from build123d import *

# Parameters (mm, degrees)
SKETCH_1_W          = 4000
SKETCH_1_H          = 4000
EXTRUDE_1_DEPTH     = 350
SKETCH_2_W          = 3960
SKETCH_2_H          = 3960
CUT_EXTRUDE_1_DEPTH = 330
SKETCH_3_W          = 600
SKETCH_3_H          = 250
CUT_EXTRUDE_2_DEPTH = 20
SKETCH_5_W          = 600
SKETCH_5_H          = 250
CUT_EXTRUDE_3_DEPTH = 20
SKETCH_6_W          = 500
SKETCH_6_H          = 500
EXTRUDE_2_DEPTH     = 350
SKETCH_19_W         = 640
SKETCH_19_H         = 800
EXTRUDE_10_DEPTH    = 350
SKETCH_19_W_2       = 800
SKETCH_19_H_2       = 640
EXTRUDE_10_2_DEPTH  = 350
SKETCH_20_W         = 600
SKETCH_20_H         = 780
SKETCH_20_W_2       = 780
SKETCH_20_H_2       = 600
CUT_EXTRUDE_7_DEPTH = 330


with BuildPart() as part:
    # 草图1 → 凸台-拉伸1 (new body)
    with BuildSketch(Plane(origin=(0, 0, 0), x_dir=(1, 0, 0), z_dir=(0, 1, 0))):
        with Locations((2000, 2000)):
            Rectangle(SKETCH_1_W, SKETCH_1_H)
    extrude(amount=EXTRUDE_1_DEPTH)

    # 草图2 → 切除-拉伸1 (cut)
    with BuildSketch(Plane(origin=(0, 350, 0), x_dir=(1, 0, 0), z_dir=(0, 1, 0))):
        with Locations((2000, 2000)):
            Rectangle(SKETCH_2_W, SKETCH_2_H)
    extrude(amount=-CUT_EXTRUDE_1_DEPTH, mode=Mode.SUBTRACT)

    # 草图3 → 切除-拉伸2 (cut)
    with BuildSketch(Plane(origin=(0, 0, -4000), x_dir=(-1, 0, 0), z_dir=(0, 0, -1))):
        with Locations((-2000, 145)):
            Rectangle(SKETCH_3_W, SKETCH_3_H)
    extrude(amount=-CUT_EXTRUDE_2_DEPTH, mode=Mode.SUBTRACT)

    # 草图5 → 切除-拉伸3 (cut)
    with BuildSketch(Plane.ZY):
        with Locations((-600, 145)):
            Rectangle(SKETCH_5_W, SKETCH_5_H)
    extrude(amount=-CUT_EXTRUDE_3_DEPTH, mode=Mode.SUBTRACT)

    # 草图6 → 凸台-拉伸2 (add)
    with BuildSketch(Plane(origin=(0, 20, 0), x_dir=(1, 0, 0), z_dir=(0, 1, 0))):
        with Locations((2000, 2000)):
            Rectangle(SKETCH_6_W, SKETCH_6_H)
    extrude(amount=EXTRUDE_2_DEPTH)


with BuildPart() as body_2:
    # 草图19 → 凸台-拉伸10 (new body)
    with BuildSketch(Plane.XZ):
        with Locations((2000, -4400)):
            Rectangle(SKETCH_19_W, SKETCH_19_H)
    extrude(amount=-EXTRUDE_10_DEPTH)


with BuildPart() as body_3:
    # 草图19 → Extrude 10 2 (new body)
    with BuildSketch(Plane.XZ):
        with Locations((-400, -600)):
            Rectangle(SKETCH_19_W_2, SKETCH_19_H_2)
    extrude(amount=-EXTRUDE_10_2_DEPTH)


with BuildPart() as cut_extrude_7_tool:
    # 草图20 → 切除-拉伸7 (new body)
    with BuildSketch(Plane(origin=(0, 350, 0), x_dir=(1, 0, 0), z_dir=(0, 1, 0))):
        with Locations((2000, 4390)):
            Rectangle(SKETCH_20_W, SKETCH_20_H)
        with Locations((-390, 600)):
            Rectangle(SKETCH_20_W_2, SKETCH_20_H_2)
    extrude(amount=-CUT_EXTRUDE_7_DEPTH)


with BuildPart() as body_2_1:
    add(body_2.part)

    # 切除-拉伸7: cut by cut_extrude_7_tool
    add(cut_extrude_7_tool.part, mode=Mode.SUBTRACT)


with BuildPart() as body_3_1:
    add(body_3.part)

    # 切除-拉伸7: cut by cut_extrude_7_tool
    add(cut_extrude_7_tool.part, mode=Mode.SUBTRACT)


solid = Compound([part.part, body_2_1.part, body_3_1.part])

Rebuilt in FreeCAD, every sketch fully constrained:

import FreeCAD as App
import Part
import Sketcher
from FreeCAD import Vector


def add_polygon(sketch, points):
    """Adds a closed chain of lines whose ends are joined by coincident constraints."""
    first, n = sketch.GeometryCount, len(points)
    for a, b in zip(points, points[1:] + points[:1]):
        sketch.addGeometry(Part.LineSegment(App.Vector(*a, 0), App.Vector(*b, 0)), False)
    for i in range(n):
        sketch.addConstraint(Sketcher.Constraint("Coincident", first + i, 2, first + (i + 1) % n, 1))

doc = App.newDocument("Part")
body = doc.addObject("PartDesign::Body", "Body")

# Sketch on XZ plane
sketch1 = body.newObject("Sketcher::SketchObject", "Sketch")
sketch1.AttachmentSupport = (doc.getObject("XZ_Plane"), [""])
sketch1.MapMode = "FlatFace"
add_polygon(sketch1, [(0, -4000), (0, 0), (4000, 0), (4000, -4000)])  # lines 0-3
sketch1.addConstraint(Sketcher.Constraint("Vertical", 0))
sketch1.addConstraint(Sketcher.Constraint("Horizontal", 1))
sketch1.addConstraint(Sketcher.Constraint("Vertical", 2))
sketch1.addConstraint(Sketcher.Constraint("Horizontal", 3))
sketch1.addConstraint(Sketcher.Constraint("Coincident", 0, 2, -1, 1))
sketch1.addConstraint(Sketcher.Constraint("Equal", 3, 0))
sketch1.addConstraint(Sketcher.Constraint("DistanceX", 1, 1, 1, 2, 4000.0))
pad1 = body.newObject("PartDesign::Pad", "Pad")
pad1.Profile = sketch1
pad1.Length = 350
pad1.Reversed = True

# Sketch on XZ plane
sketch2 = body.newObject("Sketcher::SketchObject", "Sketch001")
sketch2.AttachmentSupport = (doc.getObject("XZ_Plane"), [""])
sketch2.MapMode = "FlatFace"
sketch2.AttachmentOffset = App.Placement(Vector(0, 0, -350), App.Rotation())
add_polygon(sketch2, [(20, -3980), (20, -20), (3980, -20), (3980, -3980)])  # lines 0-3
sketch2.addConstraint(Sketcher.Constraint("Vertical", 0))
sketch2.addConstraint(Sketcher.Constraint("Horizontal", 1))
sketch2.addConstraint(Sketcher.Constraint("Vertical", 2))
sketch2.addConstraint(Sketcher.Constraint("Horizontal", 3))
sketch2.addConstraint(Sketcher.Constraint("Equal", 3, 0))
sketch2.addConstraint(Sketcher.Constraint("DistanceX", 1, 1, 1, 2, 3960.0))
sketch2.addConstraint(Sketcher.Constraint("DistanceX", -1, 1, 0, 2, 20.0))
sketch2.addConstraint(Sketcher.Constraint("DistanceY", 0, 2, -1, 1, 20.0))
pocket1 = body.newObject("PartDesign::Pocket", "Pocket")
pocket1.Profile = sketch2
pocket1.Length = 330
pocket1.Reversed = True

# Sketch on XY plane
sketch3 = body.newObject("Sketcher::SketchObject", "Sketch002")
sketch3.AttachmentSupport = (doc.getObject("XY_Plane"), [""])
sketch3.MapMode = "FlatFace"
sketch3.AttachmentOffset = App.Placement(Vector(0, 0, -4000), App.Rotation())
add_polygon(sketch3, [(2300, 270), (2300, 20), (1700, 20), (1700, 270)])  # lines 0-3
sketch3.addConstraint(Sketcher.Constraint("Vertical", 0))
sketch3.addConstraint(Sketcher.Constraint("Horizontal", 1))
sketch3.addConstraint(Sketcher.Constraint("Vertical", 2))
sketch3.addConstraint(Sketcher.Constraint("Horizontal", 3))
sketch3.addConstraint(Sketcher.Constraint("DistanceX", 1, 2, 1, 1, 600.0))
sketch3.addConstraint(Sketcher.Constraint("DistanceY", 0, 2, 0, 1, 250.0))
sketch3.addConstraint(Sketcher.Constraint("DistanceX", -1, 1, 0, 2, 2300.0))
sketch3.addConstraint(Sketcher.Constraint("DistanceY", -1, 1, 0, 2, 20.0))
pocket2 = body.newObject("PartDesign::Pocket", "Pocket001")
pocket2.Profile = sketch3
pocket2.Length = 20
pocket2.Reversed = True

# Sketch on YZ plane
sketch4 = body.newObject("Sketcher::SketchObject", "Sketch003")
sketch4.AttachmentSupport = (doc.getObject("YZ_Plane"), [""])
sketch4.MapMode = "FlatFace"
add_polygon(sketch4, [(270, -900), (20, -900), (20, -300), (270, -300)])  # lines 0-3
sketch4.addConstraint(Sketcher.Constraint("Horizontal", 0))
sketch4.addConstraint(Sketcher.Constraint("Vertical", 1))
sketch4.addConstraint(Sketcher.Constraint("Horizontal", 2))
sketch4.addConstraint(Sketcher.Constraint("Vertical", 3))
sketch4.addConstraint(Sketcher.Constraint("DistanceX", 0, 2, 0, 1, 250.0))
sketch4.addConstraint(Sketcher.Constraint("DistanceY", 1, 1, 1, 2, 600.0))
sketch4.addConstraint(Sketcher.Constraint("DistanceX", -1, 1, 0, 2, 20.0))
sketch4.addConstraint(Sketcher.Constraint("DistanceY", 0, 2, -1, 1, 900.0))
pocket3 = body.newObject("PartDesign::Pocket", "Pocket002")
pocket3.Profile = sketch4
pocket3.Length = 20
pocket3.Reversed = True

# Sketch on XZ plane
sketch5 = body.newObject("Sketcher::SketchObject", "Sketch004")
sketch5.AttachmentSupport = (doc.getObject("XZ_Plane"), [""])
sketch5.MapMode = "FlatFace"
sketch5.AttachmentOffset = App.Placement(Vector(0, 0, -20), App.Rotation())
add_polygon(sketch5, [(1750, -2250), (1750, -1750), (2250, -1750), (2250, -2250)])  # lines 0-3
sketch5.addConstraint(Sketcher.Constraint("Vertical", 0))
sketch5.addConstraint(Sketcher.Constraint("Horizontal", 1))
sketch5.addConstraint(Sketcher.Constraint("Vertical", 2))
sketch5.addConstraint(Sketcher.Constraint("Horizontal", 3))
sketch5.addConstraint(Sketcher.Constraint("Equal", 3, 0))
sketch5.addConstraint(Sketcher.Constraint("DistanceX", 1, 1, 1, 2, 500.0))
sketch5.addConstraint(Sketcher.Constraint("DistanceX", -1, 1, 0, 2, 1750.0))
sketch5.addConstraint(Sketcher.Constraint("DistanceY", 0, 2, -1, 1, 1750.0))
pad2 = body.newObject("PartDesign::Pad", "Pad001")
pad2.Profile = sketch5
pad2.Length = 350
pad2.Reversed = True
body2 = doc.addObject("PartDesign::Body", "Body001")

# Sketch on XZ plane
sketch6 = body2.newObject("Sketcher::SketchObject", "Sketch005")
sketch6.AttachmentSupport = (doc.getObject("XZ_Plane001"), [""])
sketch6.MapMode = "FlatFace"
add_polygon(sketch6, [(1680, -4000), (1680, -4800), (2320, -4800), (2320, -4000)])  # lines 0-3
sketch6.addConstraint(Sketcher.Constraint("Vertical", 0))
sketch6.addConstraint(Sketcher.Constraint("Horizontal", 1))
sketch6.addConstraint(Sketcher.Constraint("Vertical", 2))
sketch6.addConstraint(Sketcher.Constraint("Horizontal", 3))
sketch6.addConstraint(Sketcher.Constraint("DistanceX", 1, 1, 1, 2, 640.0))
sketch6.addConstraint(Sketcher.Constraint("DistanceY", 0, 2, 0, 1, 800.0))
sketch6.addConstraint(Sketcher.Constraint("DistanceX", -1, 1, 0, 2, 1680.0))
sketch6.addConstraint(Sketcher.Constraint("DistanceY", 0, 2, -1, 1, 4800.0))
pad3 = body2.newObject("PartDesign::Pad", "Pad002")
pad3.Profile = sketch6
pad3.Length = 350
pad3.Reversed = True
body3 = doc.addObject("PartDesign::Body", "Body002")

# Sketch on XZ plane
sketch7 = body3.newObject("Sketcher::SketchObject", "Sketch006")
sketch7.AttachmentSupport = (doc.getObject("XZ_Plane002"), [""])
sketch7.MapMode = "FlatFace"
add_polygon(sketch7, [(-800, -280), (-800, -920), (0, -920), (0, -280)])  # lines 0-3
sketch7.addConstraint(Sketcher.Constraint("Vertical", 0))
sketch7.addConstraint(Sketcher.Constraint("Horizontal", 1))
sketch7.addConstraint(Sketcher.Constraint("Vertical", 2))
sketch7.addConstraint(Sketcher.Constraint("Horizontal", 3))
sketch7.addConstraint(Sketcher.Constraint("PointOnObject", 1, 2, -2))
sketch7.addConstraint(Sketcher.Constraint("DistanceX", 1, 1, 1, 2, 800.0))
sketch7.addConstraint(Sketcher.Constraint("DistanceY", 0, 2, 0, 1, 640.0))
sketch7.addConstraint(Sketcher.Constraint("DistanceY", 0, 2, -1, 1, 920.0))
pad4 = body3.newObject("PartDesign::Pad", "Pad003")
pad4.Profile = sketch7
pad4.Length = 350
pad4.Reversed = True
body4 = doc.addObject("PartDesign::Body", "Body003")
body4.AllowCompound = True

# Sketch on XZ plane
sketch8 = body4.newObject("Sketcher::SketchObject", "Sketch007")
sketch8.AttachmentSupport = (doc.getObject("XZ_Plane003"), [""])
sketch8.MapMode = "FlatFace"
sketch8.AttachmentOffset = App.Placement(Vector(0, 0, -350), App.Rotation())
add_polygon(sketch8, [(1700, -4780), (1700, -4000), (2300, -4000), (2300, -4780)])  # lines 0-3
add_polygon(sketch8, [(-780, -900), (-780, -300), (0, -300), (0, -900)])  # lines 4-7
sketch8.addConstraint(Sketcher.Constraint("Vertical", 0))
sketch8.addConstraint(Sketcher.Constraint("Horizontal", 1))
sketch8.addConstraint(Sketcher.Constraint("Vertical", 2))
sketch8.addConstraint(Sketcher.Constraint("Horizontal", 3))
sketch8.addConstraint(Sketcher.Constraint("Vertical", 4))
sketch8.addConstraint(Sketcher.Constraint("Horizontal", 5))
sketch8.addConstraint(Sketcher.Constraint("Vertical", 6))
sketch8.addConstraint(Sketcher.Constraint("Horizontal", 7))
sketch8.addConstraint(Sketcher.Constraint("PointOnObject", 5, 2, -2))
sketch8.addConstraint(Sketcher.Constraint("Equal", 7, 0))
sketch8.addConstraint(Sketcher.Constraint("Equal", 3, 4))
sketch8.addConstraint(Sketcher.Constraint("DistanceX", 1, 1, 1, 2, 600.0))
sketch8.addConstraint(Sketcher.Constraint("DistanceX", 5, 1, 5, 2, 780.0))
sketch8.addConstraint(Sketcher.Constraint("DistanceX", -1, 1, 0, 2, 1700.0))
sketch8.addConstraint(Sketcher.Constraint("DistanceY", 0, 2, -1, 1, 4000.0))
sketch8.addConstraint(Sketcher.Constraint("DistanceY", 4, 2, -1, 1, 300.0))
pad5 = body4.newObject("PartDesign::Pad", "Pad004")
pad5.Profile = sketch8
pad5.Length = 330
doc.recompute()

body5 = doc.addObject("PartDesign::Body", "Body004")
body5.BaseFeature = body4
boolean = body2.newObject("PartDesign::Boolean", "Boolean")
boolean.Type = "Cut"
boolean.addObjects([body5])
doc.recompute()

boolean2 = body3.newObject("PartDesign::Boolean", "Boolean001")
boolean2.Type = "Cut"
boolean2.addObjects([body4])

doc.recompute()
